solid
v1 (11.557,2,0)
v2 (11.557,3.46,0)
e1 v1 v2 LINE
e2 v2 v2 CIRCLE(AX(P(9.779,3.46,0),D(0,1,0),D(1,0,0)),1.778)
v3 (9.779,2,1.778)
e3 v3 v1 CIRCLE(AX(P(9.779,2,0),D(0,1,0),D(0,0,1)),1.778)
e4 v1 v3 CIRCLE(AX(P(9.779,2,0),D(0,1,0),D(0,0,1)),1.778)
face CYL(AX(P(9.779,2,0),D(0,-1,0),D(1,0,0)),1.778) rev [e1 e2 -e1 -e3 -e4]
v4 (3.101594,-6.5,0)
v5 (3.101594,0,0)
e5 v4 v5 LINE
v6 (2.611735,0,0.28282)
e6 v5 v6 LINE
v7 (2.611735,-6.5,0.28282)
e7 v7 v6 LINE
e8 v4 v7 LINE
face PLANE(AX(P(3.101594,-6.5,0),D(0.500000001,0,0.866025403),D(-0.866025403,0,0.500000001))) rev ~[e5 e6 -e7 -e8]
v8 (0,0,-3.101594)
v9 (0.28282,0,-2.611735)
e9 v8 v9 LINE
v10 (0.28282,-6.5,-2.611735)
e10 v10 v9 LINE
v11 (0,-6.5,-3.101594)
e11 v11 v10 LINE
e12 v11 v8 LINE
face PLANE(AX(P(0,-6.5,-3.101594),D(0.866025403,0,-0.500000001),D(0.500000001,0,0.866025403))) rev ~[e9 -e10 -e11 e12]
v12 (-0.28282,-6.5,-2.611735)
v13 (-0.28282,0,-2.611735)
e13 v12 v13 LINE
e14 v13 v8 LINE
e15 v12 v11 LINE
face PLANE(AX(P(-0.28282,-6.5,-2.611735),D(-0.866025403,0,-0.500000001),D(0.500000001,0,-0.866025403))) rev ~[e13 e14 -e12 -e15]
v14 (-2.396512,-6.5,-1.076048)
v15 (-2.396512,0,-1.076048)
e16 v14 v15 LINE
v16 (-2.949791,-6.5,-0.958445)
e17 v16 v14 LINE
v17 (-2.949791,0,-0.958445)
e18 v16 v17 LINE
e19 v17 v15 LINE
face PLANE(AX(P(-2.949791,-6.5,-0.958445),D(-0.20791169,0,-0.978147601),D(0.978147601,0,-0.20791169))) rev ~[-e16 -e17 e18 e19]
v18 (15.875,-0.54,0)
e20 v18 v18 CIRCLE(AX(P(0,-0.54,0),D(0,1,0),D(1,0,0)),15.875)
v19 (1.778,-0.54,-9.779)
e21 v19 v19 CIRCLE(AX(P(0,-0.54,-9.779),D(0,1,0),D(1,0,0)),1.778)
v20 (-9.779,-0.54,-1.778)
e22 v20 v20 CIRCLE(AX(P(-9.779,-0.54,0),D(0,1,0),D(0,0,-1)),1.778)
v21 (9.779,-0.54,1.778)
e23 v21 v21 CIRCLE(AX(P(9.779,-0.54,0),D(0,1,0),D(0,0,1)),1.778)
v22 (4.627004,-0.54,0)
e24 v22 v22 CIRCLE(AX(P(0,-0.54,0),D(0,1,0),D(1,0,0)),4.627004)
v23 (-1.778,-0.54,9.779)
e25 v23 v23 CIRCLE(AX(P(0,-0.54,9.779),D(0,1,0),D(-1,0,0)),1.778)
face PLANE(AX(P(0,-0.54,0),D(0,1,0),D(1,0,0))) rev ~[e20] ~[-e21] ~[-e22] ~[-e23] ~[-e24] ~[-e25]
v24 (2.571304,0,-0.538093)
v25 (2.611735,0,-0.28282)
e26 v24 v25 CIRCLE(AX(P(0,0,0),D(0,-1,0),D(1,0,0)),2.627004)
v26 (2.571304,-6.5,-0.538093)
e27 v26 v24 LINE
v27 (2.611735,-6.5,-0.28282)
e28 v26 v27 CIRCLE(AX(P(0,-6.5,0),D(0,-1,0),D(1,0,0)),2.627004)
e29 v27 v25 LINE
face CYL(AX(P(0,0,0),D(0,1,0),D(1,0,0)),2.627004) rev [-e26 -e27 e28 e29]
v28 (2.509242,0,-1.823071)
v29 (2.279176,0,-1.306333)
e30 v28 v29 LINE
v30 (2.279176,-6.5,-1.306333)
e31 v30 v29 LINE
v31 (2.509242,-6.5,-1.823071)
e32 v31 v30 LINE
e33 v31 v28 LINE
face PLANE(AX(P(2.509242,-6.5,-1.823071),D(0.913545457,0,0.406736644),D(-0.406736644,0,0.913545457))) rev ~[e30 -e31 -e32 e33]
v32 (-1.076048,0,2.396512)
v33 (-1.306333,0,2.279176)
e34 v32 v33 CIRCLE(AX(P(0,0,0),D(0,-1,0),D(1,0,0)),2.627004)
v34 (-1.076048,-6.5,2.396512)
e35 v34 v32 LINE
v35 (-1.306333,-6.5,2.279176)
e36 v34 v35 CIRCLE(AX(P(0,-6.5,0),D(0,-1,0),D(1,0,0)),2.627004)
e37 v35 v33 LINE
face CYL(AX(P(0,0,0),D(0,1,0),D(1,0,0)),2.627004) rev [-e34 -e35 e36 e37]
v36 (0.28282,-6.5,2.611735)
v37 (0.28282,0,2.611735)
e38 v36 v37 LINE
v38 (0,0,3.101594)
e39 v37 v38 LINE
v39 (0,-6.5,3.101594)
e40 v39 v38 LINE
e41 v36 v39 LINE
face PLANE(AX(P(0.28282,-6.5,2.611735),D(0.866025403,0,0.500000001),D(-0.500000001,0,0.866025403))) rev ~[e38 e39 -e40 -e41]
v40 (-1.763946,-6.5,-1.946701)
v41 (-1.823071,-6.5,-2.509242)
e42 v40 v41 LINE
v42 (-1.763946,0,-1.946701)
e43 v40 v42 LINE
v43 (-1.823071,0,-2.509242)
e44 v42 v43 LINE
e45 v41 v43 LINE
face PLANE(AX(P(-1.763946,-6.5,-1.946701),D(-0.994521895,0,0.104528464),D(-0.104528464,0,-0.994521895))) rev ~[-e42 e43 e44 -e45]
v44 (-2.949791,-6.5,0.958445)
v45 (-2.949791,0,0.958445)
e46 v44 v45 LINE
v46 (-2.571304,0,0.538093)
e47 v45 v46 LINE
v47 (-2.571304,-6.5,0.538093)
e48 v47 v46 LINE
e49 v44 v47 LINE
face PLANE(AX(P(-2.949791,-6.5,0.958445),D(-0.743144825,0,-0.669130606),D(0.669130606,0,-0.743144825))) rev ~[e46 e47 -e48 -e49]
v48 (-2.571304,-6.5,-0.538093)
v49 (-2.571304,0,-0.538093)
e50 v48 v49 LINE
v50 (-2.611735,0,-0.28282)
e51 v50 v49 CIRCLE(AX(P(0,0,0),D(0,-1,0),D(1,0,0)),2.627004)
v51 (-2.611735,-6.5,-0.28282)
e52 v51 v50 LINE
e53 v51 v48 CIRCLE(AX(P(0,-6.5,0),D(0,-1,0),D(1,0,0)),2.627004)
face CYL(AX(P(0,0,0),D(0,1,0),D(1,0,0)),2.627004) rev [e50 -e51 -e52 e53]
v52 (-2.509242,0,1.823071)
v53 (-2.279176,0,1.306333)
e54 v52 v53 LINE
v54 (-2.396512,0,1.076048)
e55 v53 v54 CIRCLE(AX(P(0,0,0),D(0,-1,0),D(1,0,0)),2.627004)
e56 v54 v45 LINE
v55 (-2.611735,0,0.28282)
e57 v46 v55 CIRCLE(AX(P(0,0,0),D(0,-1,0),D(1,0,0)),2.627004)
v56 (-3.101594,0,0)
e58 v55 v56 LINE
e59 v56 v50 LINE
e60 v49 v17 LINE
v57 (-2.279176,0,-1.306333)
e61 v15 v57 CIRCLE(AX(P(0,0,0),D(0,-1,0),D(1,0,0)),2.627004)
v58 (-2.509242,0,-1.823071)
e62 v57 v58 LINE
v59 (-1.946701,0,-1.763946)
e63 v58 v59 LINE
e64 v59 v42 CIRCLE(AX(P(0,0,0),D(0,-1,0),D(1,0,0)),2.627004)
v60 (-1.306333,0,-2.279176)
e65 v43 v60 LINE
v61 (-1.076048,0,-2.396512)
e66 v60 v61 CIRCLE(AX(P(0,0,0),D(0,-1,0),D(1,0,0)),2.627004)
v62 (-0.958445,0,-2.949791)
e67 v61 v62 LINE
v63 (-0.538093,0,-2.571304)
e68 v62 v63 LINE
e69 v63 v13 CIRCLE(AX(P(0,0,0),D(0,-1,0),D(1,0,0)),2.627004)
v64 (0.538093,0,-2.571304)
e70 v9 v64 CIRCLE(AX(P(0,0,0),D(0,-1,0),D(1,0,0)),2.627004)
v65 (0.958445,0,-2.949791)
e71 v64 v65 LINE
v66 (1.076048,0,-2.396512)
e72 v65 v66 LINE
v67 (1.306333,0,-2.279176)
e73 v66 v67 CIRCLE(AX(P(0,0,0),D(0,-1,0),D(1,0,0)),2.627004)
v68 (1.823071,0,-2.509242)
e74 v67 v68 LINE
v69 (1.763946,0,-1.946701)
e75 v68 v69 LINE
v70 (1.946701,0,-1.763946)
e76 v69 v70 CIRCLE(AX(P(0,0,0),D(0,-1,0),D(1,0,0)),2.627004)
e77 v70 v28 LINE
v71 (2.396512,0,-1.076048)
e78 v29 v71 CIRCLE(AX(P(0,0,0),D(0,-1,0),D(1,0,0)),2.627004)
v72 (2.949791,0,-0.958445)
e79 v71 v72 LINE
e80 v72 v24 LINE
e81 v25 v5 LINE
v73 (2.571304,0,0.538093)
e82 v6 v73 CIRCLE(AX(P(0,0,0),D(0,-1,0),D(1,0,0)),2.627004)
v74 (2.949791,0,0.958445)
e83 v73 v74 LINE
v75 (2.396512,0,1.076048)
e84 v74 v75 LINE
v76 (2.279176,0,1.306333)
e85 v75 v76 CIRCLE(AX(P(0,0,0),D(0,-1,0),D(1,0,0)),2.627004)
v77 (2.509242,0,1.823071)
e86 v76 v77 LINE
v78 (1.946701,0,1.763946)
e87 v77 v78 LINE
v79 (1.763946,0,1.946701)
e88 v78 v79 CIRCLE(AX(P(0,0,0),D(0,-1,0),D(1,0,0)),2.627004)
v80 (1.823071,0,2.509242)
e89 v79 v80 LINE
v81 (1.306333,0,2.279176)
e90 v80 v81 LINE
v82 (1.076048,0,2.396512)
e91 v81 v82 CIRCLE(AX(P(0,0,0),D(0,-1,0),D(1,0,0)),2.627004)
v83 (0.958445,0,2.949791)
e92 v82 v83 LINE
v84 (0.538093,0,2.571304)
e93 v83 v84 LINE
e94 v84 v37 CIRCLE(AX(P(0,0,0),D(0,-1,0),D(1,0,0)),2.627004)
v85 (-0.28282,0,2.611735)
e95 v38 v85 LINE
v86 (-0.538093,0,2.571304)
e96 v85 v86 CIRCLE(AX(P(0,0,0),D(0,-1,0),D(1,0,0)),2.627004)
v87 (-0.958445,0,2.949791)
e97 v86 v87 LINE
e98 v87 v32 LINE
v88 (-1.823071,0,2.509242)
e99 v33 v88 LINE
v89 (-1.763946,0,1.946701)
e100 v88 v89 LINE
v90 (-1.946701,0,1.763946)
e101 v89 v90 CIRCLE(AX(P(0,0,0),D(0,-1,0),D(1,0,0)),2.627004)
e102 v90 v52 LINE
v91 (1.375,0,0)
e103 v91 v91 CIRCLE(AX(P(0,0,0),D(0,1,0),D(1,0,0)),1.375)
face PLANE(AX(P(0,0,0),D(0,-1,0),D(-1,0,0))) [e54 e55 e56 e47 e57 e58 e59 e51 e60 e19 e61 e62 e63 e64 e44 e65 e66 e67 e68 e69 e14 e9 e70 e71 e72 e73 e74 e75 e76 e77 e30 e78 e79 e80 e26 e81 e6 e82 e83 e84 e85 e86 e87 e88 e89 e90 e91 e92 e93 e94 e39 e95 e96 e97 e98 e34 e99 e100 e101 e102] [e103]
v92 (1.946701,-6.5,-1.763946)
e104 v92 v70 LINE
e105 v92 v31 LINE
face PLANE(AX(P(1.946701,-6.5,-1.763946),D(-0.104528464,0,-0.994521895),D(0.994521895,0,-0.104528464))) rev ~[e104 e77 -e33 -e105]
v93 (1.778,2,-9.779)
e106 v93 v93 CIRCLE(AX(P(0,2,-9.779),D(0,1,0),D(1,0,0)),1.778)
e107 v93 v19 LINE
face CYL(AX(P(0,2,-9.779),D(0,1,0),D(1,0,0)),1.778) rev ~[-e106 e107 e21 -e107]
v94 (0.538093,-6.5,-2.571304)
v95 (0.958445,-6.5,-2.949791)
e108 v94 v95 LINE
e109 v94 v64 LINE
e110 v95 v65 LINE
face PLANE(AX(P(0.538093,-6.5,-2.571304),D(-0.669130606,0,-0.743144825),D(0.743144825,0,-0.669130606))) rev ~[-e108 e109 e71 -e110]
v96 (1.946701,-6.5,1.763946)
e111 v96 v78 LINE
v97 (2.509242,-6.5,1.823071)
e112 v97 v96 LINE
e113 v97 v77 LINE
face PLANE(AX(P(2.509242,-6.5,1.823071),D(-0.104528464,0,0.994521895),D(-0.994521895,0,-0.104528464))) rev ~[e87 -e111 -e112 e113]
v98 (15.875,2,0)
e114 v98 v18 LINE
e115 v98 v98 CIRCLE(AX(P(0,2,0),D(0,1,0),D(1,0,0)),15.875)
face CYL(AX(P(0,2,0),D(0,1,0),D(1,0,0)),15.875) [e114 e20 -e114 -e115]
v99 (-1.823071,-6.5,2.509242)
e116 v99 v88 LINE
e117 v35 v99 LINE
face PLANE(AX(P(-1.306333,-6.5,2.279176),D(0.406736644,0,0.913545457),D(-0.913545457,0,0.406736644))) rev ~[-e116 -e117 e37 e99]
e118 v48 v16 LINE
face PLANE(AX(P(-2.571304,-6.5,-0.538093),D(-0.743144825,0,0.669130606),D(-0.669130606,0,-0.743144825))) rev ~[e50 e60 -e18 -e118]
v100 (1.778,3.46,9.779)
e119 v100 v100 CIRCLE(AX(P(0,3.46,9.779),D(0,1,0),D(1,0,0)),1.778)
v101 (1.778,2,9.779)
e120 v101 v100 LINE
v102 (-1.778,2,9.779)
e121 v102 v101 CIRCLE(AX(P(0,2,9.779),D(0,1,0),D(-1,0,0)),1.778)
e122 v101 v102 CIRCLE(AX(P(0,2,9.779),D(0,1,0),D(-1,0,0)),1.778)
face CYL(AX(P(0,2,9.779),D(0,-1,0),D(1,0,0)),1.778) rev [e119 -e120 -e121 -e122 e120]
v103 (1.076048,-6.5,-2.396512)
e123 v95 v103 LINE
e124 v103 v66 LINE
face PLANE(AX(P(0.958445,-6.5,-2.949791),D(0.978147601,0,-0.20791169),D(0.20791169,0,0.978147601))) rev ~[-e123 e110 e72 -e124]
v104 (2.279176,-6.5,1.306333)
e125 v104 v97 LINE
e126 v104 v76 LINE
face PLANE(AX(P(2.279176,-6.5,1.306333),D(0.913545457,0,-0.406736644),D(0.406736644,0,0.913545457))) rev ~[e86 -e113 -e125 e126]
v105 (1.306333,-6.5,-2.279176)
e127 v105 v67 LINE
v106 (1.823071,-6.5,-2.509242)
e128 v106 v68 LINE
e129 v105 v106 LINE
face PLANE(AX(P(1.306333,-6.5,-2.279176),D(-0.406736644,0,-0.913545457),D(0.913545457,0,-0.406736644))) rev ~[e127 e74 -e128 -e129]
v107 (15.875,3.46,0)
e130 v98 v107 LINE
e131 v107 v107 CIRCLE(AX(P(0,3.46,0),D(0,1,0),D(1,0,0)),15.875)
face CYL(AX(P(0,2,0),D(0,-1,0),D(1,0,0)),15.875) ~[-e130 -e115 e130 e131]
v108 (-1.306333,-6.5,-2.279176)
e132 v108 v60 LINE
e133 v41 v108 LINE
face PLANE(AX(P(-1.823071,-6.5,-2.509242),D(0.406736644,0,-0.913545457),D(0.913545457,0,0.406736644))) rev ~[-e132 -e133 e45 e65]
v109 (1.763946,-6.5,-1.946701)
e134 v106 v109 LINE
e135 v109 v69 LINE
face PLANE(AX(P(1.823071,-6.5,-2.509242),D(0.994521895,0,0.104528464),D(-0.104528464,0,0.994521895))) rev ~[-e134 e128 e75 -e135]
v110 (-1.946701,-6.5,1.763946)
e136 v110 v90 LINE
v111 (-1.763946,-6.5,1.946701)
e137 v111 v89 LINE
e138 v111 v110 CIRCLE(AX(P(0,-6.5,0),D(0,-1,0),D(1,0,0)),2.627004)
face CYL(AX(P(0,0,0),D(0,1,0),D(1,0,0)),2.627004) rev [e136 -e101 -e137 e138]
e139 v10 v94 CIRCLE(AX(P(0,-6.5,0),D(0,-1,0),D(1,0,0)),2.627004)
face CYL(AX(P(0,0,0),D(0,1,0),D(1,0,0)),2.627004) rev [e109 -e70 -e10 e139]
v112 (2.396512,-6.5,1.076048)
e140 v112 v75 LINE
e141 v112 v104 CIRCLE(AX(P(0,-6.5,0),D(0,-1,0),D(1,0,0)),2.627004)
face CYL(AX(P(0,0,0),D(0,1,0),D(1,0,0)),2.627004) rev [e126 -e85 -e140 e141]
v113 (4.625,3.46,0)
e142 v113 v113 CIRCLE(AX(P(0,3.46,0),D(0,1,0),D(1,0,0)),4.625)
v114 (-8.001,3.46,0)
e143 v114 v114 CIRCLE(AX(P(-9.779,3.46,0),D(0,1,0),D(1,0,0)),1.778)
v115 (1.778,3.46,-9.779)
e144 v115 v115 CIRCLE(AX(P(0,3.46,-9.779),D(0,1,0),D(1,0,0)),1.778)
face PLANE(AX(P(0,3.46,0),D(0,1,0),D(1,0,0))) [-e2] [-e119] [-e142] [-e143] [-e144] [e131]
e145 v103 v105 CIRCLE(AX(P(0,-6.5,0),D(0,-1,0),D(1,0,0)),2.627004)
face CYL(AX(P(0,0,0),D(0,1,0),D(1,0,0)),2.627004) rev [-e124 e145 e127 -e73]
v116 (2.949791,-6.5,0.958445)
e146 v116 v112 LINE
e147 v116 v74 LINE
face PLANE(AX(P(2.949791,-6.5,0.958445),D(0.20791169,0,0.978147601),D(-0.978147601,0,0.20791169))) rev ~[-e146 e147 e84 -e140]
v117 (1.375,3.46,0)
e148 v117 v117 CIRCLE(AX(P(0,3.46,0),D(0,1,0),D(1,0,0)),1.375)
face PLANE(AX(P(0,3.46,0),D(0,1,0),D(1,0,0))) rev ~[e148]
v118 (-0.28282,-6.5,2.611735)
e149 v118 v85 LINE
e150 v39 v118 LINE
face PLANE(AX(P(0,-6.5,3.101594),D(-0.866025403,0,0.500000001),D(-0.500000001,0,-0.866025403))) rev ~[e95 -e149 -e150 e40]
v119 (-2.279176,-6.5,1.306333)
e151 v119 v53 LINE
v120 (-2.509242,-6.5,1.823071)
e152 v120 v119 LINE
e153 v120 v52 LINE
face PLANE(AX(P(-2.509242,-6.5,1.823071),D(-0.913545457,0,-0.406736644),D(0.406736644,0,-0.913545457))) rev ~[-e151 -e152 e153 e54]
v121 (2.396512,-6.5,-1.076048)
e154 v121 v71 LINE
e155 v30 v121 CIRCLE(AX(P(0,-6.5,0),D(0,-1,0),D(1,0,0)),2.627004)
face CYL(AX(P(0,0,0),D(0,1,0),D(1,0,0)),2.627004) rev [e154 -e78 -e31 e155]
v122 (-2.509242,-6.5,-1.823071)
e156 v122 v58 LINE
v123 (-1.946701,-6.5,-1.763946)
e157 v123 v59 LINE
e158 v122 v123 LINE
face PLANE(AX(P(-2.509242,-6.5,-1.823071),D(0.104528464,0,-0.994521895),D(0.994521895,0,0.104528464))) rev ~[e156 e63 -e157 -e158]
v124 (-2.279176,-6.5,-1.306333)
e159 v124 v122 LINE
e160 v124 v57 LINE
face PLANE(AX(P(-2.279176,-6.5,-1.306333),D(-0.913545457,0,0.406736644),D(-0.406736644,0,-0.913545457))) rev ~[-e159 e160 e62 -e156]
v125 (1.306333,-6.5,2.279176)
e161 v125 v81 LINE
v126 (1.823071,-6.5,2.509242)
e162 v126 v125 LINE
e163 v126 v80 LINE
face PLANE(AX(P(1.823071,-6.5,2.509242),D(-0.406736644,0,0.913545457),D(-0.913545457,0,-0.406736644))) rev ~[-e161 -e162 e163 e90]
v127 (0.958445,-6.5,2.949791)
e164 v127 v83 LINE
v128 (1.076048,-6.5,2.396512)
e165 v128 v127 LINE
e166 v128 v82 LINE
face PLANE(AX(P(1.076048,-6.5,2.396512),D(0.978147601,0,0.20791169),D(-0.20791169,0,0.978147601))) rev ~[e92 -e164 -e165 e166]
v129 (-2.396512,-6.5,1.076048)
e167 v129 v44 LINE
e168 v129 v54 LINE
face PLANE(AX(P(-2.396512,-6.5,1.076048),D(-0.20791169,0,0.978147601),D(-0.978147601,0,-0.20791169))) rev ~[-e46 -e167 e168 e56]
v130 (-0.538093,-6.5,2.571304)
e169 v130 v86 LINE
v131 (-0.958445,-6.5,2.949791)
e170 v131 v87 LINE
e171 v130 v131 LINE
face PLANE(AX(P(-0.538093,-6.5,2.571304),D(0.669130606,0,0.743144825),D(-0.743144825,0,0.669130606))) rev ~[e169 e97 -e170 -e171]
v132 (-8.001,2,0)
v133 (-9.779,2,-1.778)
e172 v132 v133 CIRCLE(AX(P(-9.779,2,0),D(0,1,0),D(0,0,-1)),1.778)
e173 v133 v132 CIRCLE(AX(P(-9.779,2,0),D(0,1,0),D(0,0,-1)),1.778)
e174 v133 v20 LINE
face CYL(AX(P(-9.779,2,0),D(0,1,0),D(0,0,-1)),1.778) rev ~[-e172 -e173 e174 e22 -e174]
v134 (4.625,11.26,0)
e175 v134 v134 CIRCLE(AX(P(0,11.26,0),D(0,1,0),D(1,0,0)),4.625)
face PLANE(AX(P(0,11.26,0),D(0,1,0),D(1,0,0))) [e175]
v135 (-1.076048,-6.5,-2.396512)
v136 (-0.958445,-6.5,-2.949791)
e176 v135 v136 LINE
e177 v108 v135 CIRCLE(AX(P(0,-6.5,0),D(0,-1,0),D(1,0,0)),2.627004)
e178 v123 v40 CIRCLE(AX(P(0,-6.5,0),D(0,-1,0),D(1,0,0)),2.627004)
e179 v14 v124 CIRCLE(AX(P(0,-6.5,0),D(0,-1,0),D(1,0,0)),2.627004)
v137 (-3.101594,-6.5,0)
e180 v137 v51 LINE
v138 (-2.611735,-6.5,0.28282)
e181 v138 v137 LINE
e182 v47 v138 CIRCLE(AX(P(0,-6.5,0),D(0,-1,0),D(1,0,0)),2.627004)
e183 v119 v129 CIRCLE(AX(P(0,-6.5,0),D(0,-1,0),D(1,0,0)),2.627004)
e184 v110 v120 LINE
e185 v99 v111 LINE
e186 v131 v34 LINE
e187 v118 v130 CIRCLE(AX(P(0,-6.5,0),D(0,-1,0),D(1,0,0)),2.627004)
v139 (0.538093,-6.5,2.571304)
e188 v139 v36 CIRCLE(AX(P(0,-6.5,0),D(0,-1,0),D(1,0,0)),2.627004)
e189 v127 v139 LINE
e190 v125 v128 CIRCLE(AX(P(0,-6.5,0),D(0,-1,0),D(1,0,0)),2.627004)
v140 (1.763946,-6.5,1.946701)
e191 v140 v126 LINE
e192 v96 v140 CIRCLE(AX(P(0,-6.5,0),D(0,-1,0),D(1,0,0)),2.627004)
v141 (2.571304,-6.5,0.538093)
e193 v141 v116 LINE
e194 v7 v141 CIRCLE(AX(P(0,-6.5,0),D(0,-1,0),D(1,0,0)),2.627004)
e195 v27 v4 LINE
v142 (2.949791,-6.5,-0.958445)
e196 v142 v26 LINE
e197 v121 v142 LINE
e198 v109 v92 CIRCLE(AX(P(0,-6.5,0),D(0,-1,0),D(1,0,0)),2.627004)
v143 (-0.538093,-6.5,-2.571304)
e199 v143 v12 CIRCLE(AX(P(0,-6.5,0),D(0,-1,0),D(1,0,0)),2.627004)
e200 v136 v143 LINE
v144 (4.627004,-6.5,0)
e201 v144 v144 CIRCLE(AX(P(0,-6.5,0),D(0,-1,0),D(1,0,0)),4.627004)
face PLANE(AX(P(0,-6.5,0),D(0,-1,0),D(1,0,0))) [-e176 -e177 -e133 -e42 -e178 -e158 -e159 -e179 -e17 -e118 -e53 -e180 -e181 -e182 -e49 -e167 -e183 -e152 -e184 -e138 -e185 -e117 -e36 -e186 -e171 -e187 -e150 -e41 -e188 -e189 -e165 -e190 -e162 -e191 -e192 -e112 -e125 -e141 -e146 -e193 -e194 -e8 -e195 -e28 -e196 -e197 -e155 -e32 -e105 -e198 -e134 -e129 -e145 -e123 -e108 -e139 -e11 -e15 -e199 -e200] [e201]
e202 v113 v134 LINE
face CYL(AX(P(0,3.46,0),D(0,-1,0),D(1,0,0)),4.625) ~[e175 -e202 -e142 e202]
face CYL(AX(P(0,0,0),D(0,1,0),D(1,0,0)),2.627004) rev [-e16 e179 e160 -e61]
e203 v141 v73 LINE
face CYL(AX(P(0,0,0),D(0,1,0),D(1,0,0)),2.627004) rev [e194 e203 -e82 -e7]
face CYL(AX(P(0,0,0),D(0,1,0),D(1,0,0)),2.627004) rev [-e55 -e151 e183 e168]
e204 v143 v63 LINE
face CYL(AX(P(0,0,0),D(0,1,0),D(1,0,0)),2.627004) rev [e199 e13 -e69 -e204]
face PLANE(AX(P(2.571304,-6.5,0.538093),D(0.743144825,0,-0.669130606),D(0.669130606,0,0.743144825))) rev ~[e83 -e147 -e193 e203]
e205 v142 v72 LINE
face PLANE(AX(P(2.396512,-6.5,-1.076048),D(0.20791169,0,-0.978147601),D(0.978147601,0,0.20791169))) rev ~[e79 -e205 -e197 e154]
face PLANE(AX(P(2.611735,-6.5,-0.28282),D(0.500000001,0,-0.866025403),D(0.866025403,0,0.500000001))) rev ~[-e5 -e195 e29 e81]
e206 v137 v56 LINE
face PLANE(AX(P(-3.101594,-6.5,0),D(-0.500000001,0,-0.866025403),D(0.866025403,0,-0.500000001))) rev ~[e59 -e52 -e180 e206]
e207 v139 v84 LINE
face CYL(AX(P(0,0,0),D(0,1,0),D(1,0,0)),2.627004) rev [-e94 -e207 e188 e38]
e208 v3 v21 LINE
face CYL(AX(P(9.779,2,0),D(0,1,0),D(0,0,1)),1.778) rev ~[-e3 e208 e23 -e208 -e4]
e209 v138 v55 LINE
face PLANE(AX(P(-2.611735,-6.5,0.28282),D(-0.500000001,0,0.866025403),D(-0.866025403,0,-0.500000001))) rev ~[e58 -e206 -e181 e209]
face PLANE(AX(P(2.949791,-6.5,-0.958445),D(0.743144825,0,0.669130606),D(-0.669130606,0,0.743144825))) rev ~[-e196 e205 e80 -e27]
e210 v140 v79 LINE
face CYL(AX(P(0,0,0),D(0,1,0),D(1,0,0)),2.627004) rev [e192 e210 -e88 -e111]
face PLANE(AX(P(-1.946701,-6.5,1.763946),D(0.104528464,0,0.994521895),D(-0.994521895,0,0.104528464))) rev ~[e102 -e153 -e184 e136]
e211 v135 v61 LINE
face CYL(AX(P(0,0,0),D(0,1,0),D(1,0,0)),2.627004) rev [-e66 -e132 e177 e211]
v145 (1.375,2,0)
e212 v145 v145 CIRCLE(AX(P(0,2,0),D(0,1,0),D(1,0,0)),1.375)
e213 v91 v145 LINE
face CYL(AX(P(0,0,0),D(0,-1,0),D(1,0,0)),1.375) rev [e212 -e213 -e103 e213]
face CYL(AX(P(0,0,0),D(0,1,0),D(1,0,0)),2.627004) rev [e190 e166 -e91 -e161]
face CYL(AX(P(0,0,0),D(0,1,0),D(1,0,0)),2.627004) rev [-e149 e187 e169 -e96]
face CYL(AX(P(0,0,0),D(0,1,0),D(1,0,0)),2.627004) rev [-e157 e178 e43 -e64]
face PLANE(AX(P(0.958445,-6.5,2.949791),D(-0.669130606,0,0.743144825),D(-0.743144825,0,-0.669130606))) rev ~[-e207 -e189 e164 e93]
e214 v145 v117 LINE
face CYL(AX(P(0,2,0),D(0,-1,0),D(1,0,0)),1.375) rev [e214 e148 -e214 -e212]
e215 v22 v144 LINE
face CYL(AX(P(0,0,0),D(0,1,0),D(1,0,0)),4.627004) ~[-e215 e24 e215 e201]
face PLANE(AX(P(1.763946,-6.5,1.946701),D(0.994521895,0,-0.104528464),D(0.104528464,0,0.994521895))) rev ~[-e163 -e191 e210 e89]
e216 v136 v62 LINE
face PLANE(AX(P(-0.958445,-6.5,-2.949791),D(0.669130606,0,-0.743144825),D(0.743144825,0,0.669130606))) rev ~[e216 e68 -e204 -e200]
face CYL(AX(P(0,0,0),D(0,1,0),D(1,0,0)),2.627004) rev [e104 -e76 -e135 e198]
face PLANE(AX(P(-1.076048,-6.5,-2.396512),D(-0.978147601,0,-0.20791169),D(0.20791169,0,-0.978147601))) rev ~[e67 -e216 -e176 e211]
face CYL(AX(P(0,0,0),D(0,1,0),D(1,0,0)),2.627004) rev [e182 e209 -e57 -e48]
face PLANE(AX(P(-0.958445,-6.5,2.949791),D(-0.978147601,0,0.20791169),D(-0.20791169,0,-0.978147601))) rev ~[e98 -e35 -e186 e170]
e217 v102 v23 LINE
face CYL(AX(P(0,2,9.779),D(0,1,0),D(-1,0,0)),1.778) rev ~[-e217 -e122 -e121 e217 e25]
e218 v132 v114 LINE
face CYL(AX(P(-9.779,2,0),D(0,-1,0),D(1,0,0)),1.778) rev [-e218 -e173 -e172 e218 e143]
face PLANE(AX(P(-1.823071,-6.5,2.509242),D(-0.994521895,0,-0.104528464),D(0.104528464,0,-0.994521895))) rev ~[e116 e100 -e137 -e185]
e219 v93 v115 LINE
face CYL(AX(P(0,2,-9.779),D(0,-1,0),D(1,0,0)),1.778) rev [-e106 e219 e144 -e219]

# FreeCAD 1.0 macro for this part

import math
import FreeCAD as App
import Part
import Sketcher
from FreeCAD import Vector
Q = App.Units.Quantity

doc = App.newDocument("Part")
body = doc.addObject("PartDesign::Body", "Body")

sketch1 = doc.addObject("Sketcher::SketchObject", "Sketch")
body.addObject(sketch1)
sketch1.AttachmentSupport = (doc.XZ_Plane, [""])
sketch1.MapMode = "FlatFace"
sketch1.addGeometry([
    Part.LineSegment(Vector(-2.467436, -13.402194, 0), Vector(-4, -4, 0)),
    Part.LineSegment(Vector(-4, -4, 0), Vector(-12.448473, -2.459446, 0)),
    Part.ArcOfCircle(Part.Circle(Vector(-12, 0, 0), Vector(0, 0, 1), 2.5), math.radians(100.334179), math.radians(259.665821)),
    Part.LineSegment(Vector(-12.448473, 2.459446, 0), Vector(-4, 4, 0)),
    Part.LineSegment(Vector(-4, 4, 0), Vector(-2.467436, 13.402194, 0)),
    Part.ArcOfCircle(Part.Circle(Vector(0, 13, 0), Vector(0, 0, 1), 2.5), math.radians(9.257833), math.radians(170.742167)),
    Part.LineSegment(Vector(2.467436, 13.402194, 0), Vector(4, 4, 0)),
    Part.LineSegment(Vector(4, 4, 0), Vector(12.448473, 2.459446, 0)),
    Part.ArcOfCircle(Part.Circle(Vector(12, 0, 0), Vector(0, 0, 1), 2.5), math.radians(-79.665821), math.radians(79.665821)),
    Part.LineSegment(Vector(12.448473, -2.459446, 0), Vector(4, -4, 0)),
    Part.LineSegment(Vector(4, -4, 0), Vector(2.467436, -13.402194, 0)),
    Part.ArcOfCircle(Part.Circle(Vector(0, -13, 0), Vector(0, 0, 1), 2.5), math.radians(-170.742167), math.radians(-9.257833)),
    Part.Circle(Vector(0, 12, 0), Vector(0, 0, 1), 0.5),
    Part.Circle(Vector(0, 9.5, 0), Vector(0, 0, 1), 0.5),
    Part.Circle(Vector(0, 7.5, 0), Vector(0, 0, 1), 0.5),
    Part.Circle(Vector(12, 0, 0), Vector(0, 0, 1), 0.5),
    Part.Circle(Vector(9.5, 0, 0), Vector(0, 0, 1), 0.5),
    Part.Circle(Vector(7.5, 0, 0), Vector(0, 0, 1), 0.5),
    Part.Circle(Vector(0, 0, 0), Vector(0, 0, 1), 1.375),
    Part.Circle(Vector(-7.5, 0, 0), Vector(0, 0, 1), 0.5),
    Part.Circle(Vector(-9.5, 0, 0), Vector(0, 0, 1), 0.5),
    Part.Circle(Vector(-12, 0, 0), Vector(0, 0, 1), 0.5),
    Part.Circle(Vector(0, -7.5, 0), Vector(0, 0, 1), 0.5),
    Part.Circle(Vector(0, -9.5, 0), Vector(0, 0, 1), 0.5),
    Part.Circle(Vector(0, -12, 0), Vector(0, 0, 1), 0.5),
], False)
sketch1.addConstraint([
    Sketcher.Constraint("Coincident", 0, 2, 1, 1),
    Sketcher.Constraint("Tangent", 1, 2, 2, 2),
    Sketcher.Constraint("Tangent", 2, 1, 3, 1),
    Sketcher.Constraint("Coincident", 3, 2, 4, 1),
    Sketcher.Constraint("Tangent", 4, 2, 5, 2),
    Sketcher.Constraint("Tangent", 5, 1, 6, 1),
    Sketcher.Constraint("Coincident", 6, 2, 7, 1),
    Sketcher.Constraint("Tangent", 7, 2, 8, 2),
    Sketcher.Constraint("Tangent", 8, 1, 9, 1),
    Sketcher.Constraint("Coincident", 9, 2, 10, 1),
    Sketcher.Constraint("Tangent", 10, 2, 11, 2),
    Sketcher.Constraint("Tangent", 11, 1, 0, 1),
    Sketcher.Constraint("Coincident", 18, 3, -1, 1),
    Sketcher.Constraint("Coincident", 15, 3, 8, 3),
    Sketcher.Constraint("Coincident", 21, 3, 2, 3),
    Sketcher.Constraint("Equal", 2, 5),
    Sketcher.Constraint("Equal", 5, 8),
    Sketcher.Constraint("Equal", 8, 11),
    Sketcher.Constraint("Equal", 12, 13),
    Sketcher.Constraint("Equal", 13, 14),
    Sketcher.Constraint("Equal", 14, 15),
    Sketcher.Constraint("Equal", 15, 16),
    Sketcher.Constraint("Equal", 16, 17),
    Sketcher.Constraint("Equal", 17, 19),
    Sketcher.Constraint("Equal", 19, 20),
    Sketcher.Constraint("Equal", 20, 21),
    Sketcher.Constraint("Equal", 21, 22),
    Sketcher.Constraint("Equal", 22, 23),
    Sketcher.Constraint("Equal", 23, 24),
    Sketcher.Constraint("Symmetric", 2, 3, 8, 3, -1, 1),
    Sketcher.Constraint("Symmetric", 5, 3, 11, 3, -1, 1),
    Sketcher.Constraint("Symmetric", 17, 3, 19, 3, -1, 1),
    Sketcher.Constraint("Symmetric", 16, 3, 20, 3, -1, 1),
    Sketcher.Constraint("Symmetric", 14, 3, 22, 3, -1, 1),
    Sketcher.Constraint("Symmetric", 13, 3, 23, 3, -1, 1),
    Sketcher.Constraint("Symmetric", 12, 3, 24, 3, -1, 1),
    Sketcher.Constraint("Symmetric", 0, 2, 6, 2, -1, 1),
    Sketcher.Constraint("Symmetric", 3, 2, 9, 2, -1, 1),
    Sketcher.Constraint("Symmetric", 4, 2, 5, 1, -2),
    Sketcher.Constraint("Symmetric", 2, 1, 7, 2, -2),
    Sketcher.Constraint("PointOnObject", 12, 3, -2),
    Sketcher.Constraint("PointOnObject", 13, 3, -2),
    Sketcher.Constraint("PointOnObject", 14, 3, -2),
    Sketcher.Constraint("PointOnObject", 16, 3, -1),
    Sketcher.Constraint("PointOnObject", 17, 3, -1),
    Sketcher.Constraint("Diameter", 12, Q("1 mm")),
    Sketcher.Constraint("Radius", 2, Q("2.5 mm")),
    Sketcher.Constraint("Diameter", 18, Q("2.75 mm")),
    Sketcher.Constraint("DistanceX", 2, 3, -1, 1, Q("12 mm")),
    Sketcher.Constraint("DistanceY", -1, 1, 5, 3, Q("13 mm")),
    Sketcher.Constraint("DistanceY", -1, 1, 12, 3, Q("12 mm")),
    Sketcher.Constraint("DistanceX", 0, 2, -1, 1, Q("4 mm")),
    Sketcher.Constraint("DistanceY", 0, 2, -1, 1, Q("4 mm")),
    Sketcher.Constraint("DistanceY", 14, 3, 13, 3, Q("2 mm")),
    Sketcher.Constraint("DistanceX", 17, 3, 16, 3, Q("2 mm")),
    Sketcher.Constraint("DistanceY", -1, 1, 13, 3, Q("9.5 mm")),
    Sketcher.Constraint("DistanceX", -1, 1, 16, 3, Q("9.5 mm")),
])
pad1 = doc.addObject("PartDesign::Pad", "Pad")
body.addObject(pad1)
pad1.Profile = sketch1
pad1.Length = 2
pad1.Reversed = True

sketch2 = doc.addObject("Sketcher::SketchObject", "Sketch001")
body.addObject(sketch2)
sketch2.AttachmentSupport = (doc.XZ_Plane, [""])
sketch2.MapMode = "FlatFace"
sketch2.addGeometry([
    Part.Circle(Vector(0, 0, 0), Vector(0, 0, 1), 4.627004),
    Part.Circle(Vector(0, 0, 0), Vector(0, 0, 1), 2.627004),
], False)
sketch2.addConstraint([
    Sketcher.Constraint("Coincident", 0, 3, -1, 1),
    Sketcher.Constraint("Coincident", 1, 3, -1, 1),
    Sketcher.Constraint("Diameter", 0, Q("9.254007 mm")),
    Sketcher.Constraint("Diameter", 1, Q("5.254007 mm")),
])
pad2 = doc.addObject("PartDesign::Pad", "Pad001")
body.addObject(pad2)
pad2.Profile = sketch2
pad2.Length = 6.5

sketch3 = doc.addObject("Sketcher::SketchObject", "Sketch002")
body.addObject(sketch3)
sketch3.AttachmentSupport = (doc.XZ_Plane, [""])
sketch3.MapMode = "FlatFace"
sketch3.AttachmentOffset = App.Placement(Vector(0, 0, 6.5), App.Rotation())
sketch3.addGeometry([
    Part.LineSegment(Vector(0.28282, 2.611735, 0), Vector(0, 3.101594, 0)),
    Part.LineSegment(Vector(0, 3.101594, 0), Vector(-0.28282, 2.611735, 0)),
    Part.ArcOfCircle(Part.Circle(Vector(0, 0, 0), Vector(0, 0, 1), 2.627004), math.radians(83.819627), math.radians(96.180373)),
    Part.ArcOfCircle(Part.Circle(Vector(0, 0, 0), Vector(0, 0, 1), 2.627004), math.radians(101.819627), math.radians(114.180373)),
    Part.LineSegment(Vector(-0.538093, 2.571304, 0), Vector(-0.958445, 2.949791, 0)),
    Part.LineSegment(Vector(-0.958445, 2.949791, 0), Vector(-1.076048, 2.396512, 0)),
    Part.LineSegment(Vector(0.958445, 2.949791, 0), Vector(0.538093, 2.571304, 0)),
    Part.ArcOfCircle(Part.Circle(Vector(0, 0, 0), Vector(0, 0, 1), 2.627004), math.radians(65.819627), math.radians(78.180373)),
    Part.LineSegment(Vector(1.076048, 2.396512, 0), Vector(0.958445, 2.949791, 0)),
    Part.ArcOfCircle(Part.Circle(Vector(0, 0, 0), Vector(0, 0, 1), 2.627004), math.radians(119.819627), math.radians(132.180373)),
    Part.LineSegment(Vector(-1.306333, 2.279176, 0), Vector(-1.823071, 2.509242, 0)),
    Part.LineSegment(Vector(-1.823071, 2.509242, 0), Vector(-1.763946, 1.946701, 0)),
    Part.LineSegment(Vector(1.823071, 2.509242, 0), Vector(1.306333, 2.279176, 0)),
    Part.ArcOfCircle(Part.Circle(Vector(0, 0, 0), Vector(0, 0, 1), 2.627004), math.radians(47.819627), math.radians(60.180373)),
    Part.LineSegment(Vector(1.763946, 1.946701, 0), Vector(1.823071, 2.509242, 0)),
    Part.ArcOfCircle(Part.Circle(Vector(0, 0, 0), Vector(0, 0, 1), 2.627004), math.radians(137.819627), math.radians(150.180373)),
    Part.LineSegment(Vector(-1.946701, 1.763946, 0), Vector(-2.509242, 1.823071, 0)),
    Part.LineSegment(Vector(-2.509242, 1.823071, 0), Vector(-2.279176, 1.306333, 0)),
    Part.LineSegment(Vector(2.509242, 1.823071, 0), Vector(1.946701, 1.763946, 0)),
    Part.ArcOfCircle(Part.Circle(Vector(0, 0, 0), Vector(0, 0, 1), 2.627004), math.radians(29.819627), math.radians(42.180373)),
    Part.LineSegment(Vector(2.279176, 1.306333, 0), Vector(2.509242, 1.823071, 0)),
    Part.ArcOfCircle(Part.Circle(Vector(0, 0, 0), Vector(0, 0, 1), 2.627004), math.radians(155.819627), math.radians(168.180373)),
    Part.LineSegment(Vector(-2.396512, 1.076048, 0), Vector(-2.949791, 0.958445, 0)),
    Part.LineSegment(Vector(-2.949791, 0.958445, 0), Vector(-2.571304, 0.538093, 0)),
    Part.LineSegment(Vector(2.949791, 0.958445, 0), Vector(2.396512, 1.076048, 0)),
    Part.ArcOfCircle(Part.Circle(Vector(0, 0, 0), Vector(0, 0, 1), 2.627004), math.radians(11.819627), math.radians(24.180373)),
    Part.LineSegment(Vector(2.571304, 0.538093, 0), Vector(2.949791, 0.958445, 0)),
    Part.ArcOfCircle(Part.Circle(Vector(0, 0, 0), Vector(0, 0, 1), 2.627004), math.radians(173.819627), math.radians(186.180373)),
    Part.LineSegment(Vector(-2.611735, 0.28282, 0), Vector(-3.101594, 0, 0)),
    Part.LineSegment(Vector(-3.101594, 0, 0), Vector(-2.611735, -0.28282, 0)),
    Part.LineSegment(Vector(3.101594, 0, 0), Vector(2.611735, 0.28282, 0)),
    Part.ArcOfCircle(Part.Circle(Vector(0, 0, 0), Vector(0, 0, 1), 2.627004), math.radians(-6.180373), math.radians(6.180373)),
    Part.LineSegment(Vector(2.611735, -0.28282, 0), Vector(3.101594, 0, 0)),
    Part.ArcOfCircle(Part.Circle(Vector(0, 0, 0), Vector(0, 0, 1), 2.627004), math.radians(-168.180373), math.radians(-155.819627)),
    Part.LineSegment(Vector(-2.571304, -0.538093, 0), Vector(-2.949791, -0.958445, 0)),
    Part.LineSegment(Vector(-2.949791, -0.958445, 0), Vector(-2.396512, -1.076048, 0)),
    Part.LineSegment(Vector(2.949791, -0.958445, 0), Vector(2.571304, -0.538093, 0)),
    Part.ArcOfCircle(Part.Circle(Vector(0, 0, 0), Vector(0, 0, 1), 2.627004), math.radians(-24.180373), math.radians(-11.819627)),
    Part.LineSegment(Vector(2.396512, -1.076048, 0), Vector(2.949791, -0.958445, 0)),
    Part.ArcOfCircle(Part.Circle(Vector(0, 0, 0), Vector(0, 0, 1), 2.627004), math.radians(-150.180373), math.radians(-137.819627)),
    Part.LineSegment(Vector(-2.279176, -1.306333, 0), Vector(-2.509242, -1.823071, 0)),
    Part.LineSegment(Vector(-2.509242, -1.823071, 0), Vector(-1.946701, -1.763946, 0)),
    Part.LineSegment(Vector(2.509242, -1.823071, 0), Vector(2.279176, -1.306333, 0)),
    Part.ArcOfCircle(Part.Circle(Vector(0, 0, 0), Vector(0, 0, 1), 2.627004), math.radians(-42.180373), math.radians(-29.819627)),
    Part.LineSegment(Vector(1.946701, -1.763946, 0), Vector(2.509242, -1.823071, 0)),
    Part.ArcOfCircle(Part.Circle(Vector(0, 0, 0), Vector(0, 0, 1), 2.627004), math.radians(-132.180373), math.radians(-119.819627)),
    Part.LineSegment(Vector(-1.763946, -1.946701, 0), Vector(-1.823071, -2.509242, 0)),
    Part.LineSegment(Vector(-1.823071, -2.509242, 0), Vector(-1.306333, -2.279176, 0)),
    Part.LineSegment(Vector(1.823071, -2.509242, 0), Vector(1.763946, -1.946701, 0)),
    Part.ArcOfCircle(Part.Circle(Vector(0, 0, 0), Vector(0, 0, 1), 2.627004), math.radians(-60.180373), math.radians(-47.819627)),
    Part.LineSegment(Vector(1.306333, -2.279176, 0), Vector(1.823071, -2.509242, 0)),
    Part.ArcOfCircle(Part.Circle(Vector(0, 0, 0), Vector(0, 0, 1), 2.627004), math.radians(-114.180373), math.radians(-101.819627)),
    Part.LineSegment(Vector(-1.076048, -2.396512, 0), Vector(-0.958445, -2.949791, 0)),
    Part.LineSegment(Vector(-0.958445, -2.949791, 0), Vector(-0.538093, -2.571304, 0)),
    Part.LineSegment(Vector(0.958445, -2.949791, 0), Vector(1.076048, -2.396512, 0)),
    Part.ArcOfCircle(Part.Circle(Vector(0, 0, 0), Vector(0, 0, 1), 2.627004), math.radians(-78.180373), math.radians(-65.819627)),
    Part.LineSegment(Vector(0.538093, -2.571304, 0), Vector(0.958445, -2.949791, 0)),
    Part.ArcOfCircle(Part.Circle(Vector(0, 0, 0), Vector(0, 0, 1), 2.627004), math.radians(-96.180373), math.radians(-83.819627)),
    Part.LineSegment(Vector(-0.28282, -2.611735, 0), Vector(0, -3.101594, 0)),
    Part.LineSegment(Vector(0, -3.101594, 0), Vector(0.28282, -2.611735, 0)),
], False)
sketch3.addConstraint([
    Sketcher.Constraint("Coincident", 0, 2, 1, 1),
    Sketcher.Constraint("Coincident", 1, 2, 2, 2),
    Sketcher.Constraint("Coincident", 2, 1, 0, 1),
    Sketcher.Constraint("Coincident", 3, 1, 4, 1),
    Sketcher.Constraint("Coincident", 4, 2, 5, 1),
    Sketcher.Constraint("Coincident", 5, 2, 3, 2),
    Sketcher.Constraint("Coincident", 6, 2, 7, 2),
    Sketcher.Constraint("Coincident", 7, 1, 8, 1),
    Sketcher.Constraint("Coincident", 8, 2, 6, 1),
    Sketcher.Constraint("Coincident", 9, 1, 10, 1),
    Sketcher.Constraint("Coincident", 10, 2, 11, 1),
    Sketcher.Constraint("Coincident", 11, 2, 9, 2),
    Sketcher.Constraint("Coincident", 12, 2, 13, 2),
    Sketcher.Constraint("Coincident", 13, 1, 14, 1),
    Sketcher.Constraint("Coincident", 14, 2, 12, 1),
    Sketcher.Constraint("Coincident", 15, 1, 16, 1),
    Sketcher.Constraint("Coincident", 16, 2, 17, 1),
    Sketcher.Constraint("Coincident", 17, 2, 15, 2),
    Sketcher.Constraint("Coincident", 18, 2, 19, 2),
    Sketcher.Constraint("Coincident", 19, 1, 20, 1),
    Sketcher.Constraint("Coincident", 20, 2, 18, 1),
    Sketcher.Constraint("Coincident", 21, 1, 22, 1),
    Sketcher.Constraint("Coincident", 22, 2, 23, 1),
    Sketcher.Constraint("Coincident", 23, 2, 21, 2),
    Sketcher.Constraint("Coincident", 24, 2, 25, 2),
    Sketcher.Constraint("Coincident", 25, 1, 26, 1),
    Sketcher.Constraint("Coincident", 26, 2, 24, 1),
    Sketcher.Constraint("Coincident", 27, 1, 28, 1),
    Sketcher.Constraint("Coincident", 28, 2, 29, 1),
    Sketcher.Constraint("Coincident", 29, 2, 27, 2),
    Sketcher.Constraint("Coincident", 30, 2, 31, 2),
    Sketcher.Constraint("Coincident", 31, 1, 32, 1),
    Sketcher.Constraint("Coincident", 32, 2, 30, 1),
    Sketcher.Constraint("Coincident", 33, 1, 34, 1),
    Sketcher.Constraint("Coincident", 34, 2, 35, 1),
    Sketcher.Constraint("Coincident", 35, 2, 33, 2),
    Sketcher.Constraint("Coincident", 36, 2, 37, 2),
    Sketcher.Constraint("Coincident", 37, 1, 38, 1),
    Sketcher.Constraint("Coincident", 38, 2, 36, 1),
    Sketcher.Constraint("Coincident", 39, 1, 40, 1),
    Sketcher.Constraint("Coincident", 40, 2, 41, 1),
    Sketcher.Constraint("Coincident", 41, 2, 39, 2),
    Sketcher.Constraint("Coincident", 42, 2, 43, 2),
    Sketcher.Constraint("Coincident", 43, 1, 44, 1),
    Sketcher.Constraint("Coincident", 44, 2, 42, 1),
    Sketcher.Constraint("Coincident", 45, 1, 46, 1),
    Sketcher.Constraint("Coincident", 46, 2, 47, 1),
    Sketcher.Constraint("Coincident", 47, 2, 45, 2),
    Sketcher.Constraint("Coincident", 48, 2, 49, 2),
    Sketcher.Constraint("Coincident", 49, 1, 50, 1),
    Sketcher.Constraint("Coincident", 50, 2, 48, 1),
    Sketcher.Constraint("Coincident", 51, 1, 52, 1),
    Sketcher.Constraint("Coincident", 52, 2, 53, 1),
    Sketcher.Constraint("Coincident", 53, 2, 51, 2),
    Sketcher.Constraint("Coincident", 54, 2, 55, 2),
    Sketcher.Constraint("Coincident", 55, 1, 56, 1),
    Sketcher.Constraint("Coincident", 56, 2, 54, 1),
    Sketcher.Constraint("Coincident", 57, 1, 58, 1),
    Sketcher.Constraint("Coincident", 58, 2, 59, 1),
    Sketcher.Constraint("Coincident", 59, 2, 57, 2),
    Sketcher.Constraint("Coincident", 2, 3, -1, 1),
    Sketcher.Constraint("Coincident", 3, 3, -1, 1),
    Sketcher.Constraint("Coincident", 7, 3, -1, 1),
    Sketcher.Constraint("Coincident", 9, 3, -1, 1),
    Sketcher.Constraint("Coincident", 13, 3, -1, 1),
    Sketcher.Constraint("Coincident", 15, 3, -1, 1),
    Sketcher.Constraint("Coincident", 19, 3, -1, 1),
    Sketcher.Constraint("Coincident", 21, 3, -1, 1),
    Sketcher.Constraint("Coincident", 25, 3, -1, 1),
    Sketcher.Constraint("Coincident", 27, 3, -1, 1),
    Sketcher.Constraint("Coincident", 31, 3, -1, 1),
    Sketcher.Constraint("Coincident", 33, 3, -1, 1),
    Sketcher.Constraint("Coincident", 37, 3, -1, 1),
    Sketcher.Constraint("Coincident", 39, 3, -1, 1),
    Sketcher.Constraint("Coincident", 43, 3, -1, 1),
    Sketcher.Constraint("Coincident", 45, 3, -1, 1),
    Sketcher.Constraint("Coincident", 49, 3, -1, 1),
    Sketcher.Constraint("Coincident", 51, 3, -1, 1),
    Sketcher.Constraint("Coincident", 55, 3, -1, 1),
    Sketcher.Constraint("Coincident", 57, 3, -1, 1),
    Sketcher.Constraint("Equal", 2, 3),
    Sketcher.Constraint("Equal", 3, 7),
    Sketcher.Constraint("Equal", 7, 9),
    Sketcher.Constraint("Equal", 9, 13),
    Sketcher.Constraint("Equal", 13, 15),
    Sketcher.Constraint("Equal", 15, 19),
    Sketcher.Constraint("Equal", 19, 21),
    Sketcher.Constraint("Equal", 21, 25),
    Sketcher.Constraint("Equal", 25, 27),
    Sketcher.Constraint("Equal", 27, 31),
    Sketcher.Constraint("Equal", 31, 33),
    Sketcher.Constraint("Equal", 33, 37),
    Sketcher.Constraint("Equal", 37, 39),
    Sketcher.Constraint("Equal", 39, 43),
    Sketcher.Constraint("Equal", 43, 45),
    Sketcher.Constraint("Equal", 45, 49),
    Sketcher.Constraint("Equal", 49, 51),
    Sketcher.Constraint("Equal", 51, 55),
    Sketcher.Constraint("Equal", 55, 57),
    Sketcher.Constraint("Symmetric", 28, 2, 32, 2, -1, 1),
    Sketcher.Constraint("Symmetric", 26, 2, 34, 2, -1, 1),
    Sketcher.Constraint("Symmetric", 22, 2, 38, 2, -1, 1),
    Sketcher.Constraint("Symmetric", 20, 2, 40, 2, -1, 1),
    Sketcher.Constraint("Symmetric", 16, 2, 44, 2, -1, 1),
    Sketcher.Constraint("Symmetric", 14, 2, 46, 2, -1, 1),
    Sketcher.Constraint("Symmetric", 10, 2, 50, 2, -1, 1),
    Sketcher.Constraint("Symmetric", 8, 2, 52, 2, -1, 1),
    Sketcher.Constraint("Symmetric", 4, 2, 56, 2, -1, 1),
    Sketcher.Constraint("Symmetric", 0, 2, 58, 2, -1, 1),
    Sketcher.Constraint("Symmetric", 4, 2, 8, 2, -2),
    Sketcher.Constraint("Symmetric", 10, 2, 14, 2, -2),
    Sketcher.Constraint("Symmetric", 16, 2, 20, 2, -2),
    Sketcher.Constraint("Symmetric", 22, 2, 26, 2, -2),
    Sketcher.Constraint("PointOnObject", 0, 2, -2),
    Sketcher.Constraint("PointOnObject", 28, 2, -1),
    Sketcher.Constraint("Perpendicular", 14, 16),
    Sketcher.Constraint("Perpendicular", 12, 17),
    Sketcher.Constraint("Perpendicular", 11, 18),
    Sketcher.Constraint("Perpendicular", 10, 20),
    Sketcher.Constraint("Perpendicular", 8, 22),
    Sketcher.Constraint("Perpendicular", 6, 23),
    Sketcher.Constraint("Perpendicular", 5, 24),
    Sketcher.Constraint("Perpendicular", 4, 26),
    Sketcher.Constraint("Perpendicular", 0, 28),
    Sketcher.Constraint("Perpendicular", 1, 29),
    Sketcher.Constraint("Parallel", 29, 30),
    Sketcher.Constraint("Parallel", 28, 32),
    Sketcher.Constraint("Parallel", 26, 34),
    Sketcher.Constraint("Parallel", 24, 35),
    Sketcher.Constraint("Parallel", 23, 36),
    Sketcher.Constraint("Parallel", 22, 38),
    Sketcher.Constraint("Parallel", 20, 40),
    Sketcher.Constraint("Parallel", 18, 41),
    Sketcher.Constraint("Parallel", 17, 42),
    Sketcher.Constraint("Parallel", 16, 44),
    Sketcher.Constraint("Perpendicular", 44, 46),
    Sketcher.Constraint("Perpendicular", 42, 47),
    Sketcher.Constraint("Perpendicular", 41, 48),
    Sketcher.Constraint("Perpendicular", 40, 50),
    Sketcher.Constraint("Perpendicular", 38, 52),
    Sketcher.Constraint("Perpendicular", 36, 53),
    Sketcher.Constraint("Perpendicular", 35, 54),
    Sketcher.Constraint("Perpendicular", 34, 56),
    Sketcher.Constraint("Perpendicular", 32, 58),
    Sketcher.Constraint("Perpendicular", 30, 59),
    Sketcher.Constraint("Horizontal", 1, 2, 2, 1),
    Sketcher.Constraint("Horizontal", 3, 1, 6, 2),
    Sketcher.Constraint("Horizontal", 5, 2, 7, 1),
    Sketcher.Constraint("Horizontal", 9, 1, 12, 2),
    Sketcher.Constraint("Horizontal", 11, 2, 13, 1),
    Sketcher.Constraint("Equal", 1, 4),
    Sketcher.Constraint("Equal", 4, 5),
    Sketcher.Constraint("Equal", 8, 10),
    Sketcher.Constraint("Equal", 10, 11),
    Sketcher.Constraint("Equal", 14, 16),
    Sketcher.Constraint("Equal", 16, 17),
    Sketcher.Constraint("Equal", 20, 22),
    Sketcher.Constraint("Equal", 22, 23),
    Sketcher.Constraint("Equal", 26, 28),
    Sketcher.Constraint("Angle", 0, Q("120 deg")),
    Sketcher.Constraint("Angle", 4, Q("138 deg")),
    Sketcher.Constraint("Angle", 5, Q("-102 deg")),
    Sketcher.Constraint("Angle", 10, Q("156 deg")),
    Sketcher.Constraint("Angle", 11, Q("-84 deg")),
    Sketcher.Constraint("Radius", 2, Q("2.627004 mm")),
    Sketcher.Constraint("DistanceY", -1, 1, 11, 2, Q("1.946701 mm")),
])
pocket1 = doc.addObject("PartDesign::Pocket", "Pocket")
body.addObject(pocket1)
pocket1.Profile = sketch3
pocket1.Length = 6.5

sketch4 = doc.addObject("Sketcher::SketchObject", "Sketch003")
body.addObject(sketch4)
sketch4.AttachmentSupport = (doc.XZ_Plane, [""])
sketch4.MapMode = "FlatFace"
sketch4.AttachmentOffset = App.Placement(Vector(0, 0, -2), App.Rotation())
sketch4.addGeometry([
    Part.Circle(Vector(0, 0, 0), Vector(0, 0, 1), 15.875),
    Part.Circle(Vector(0, 0, 0), Vector(0, 0, 1), 3.75),
], False)
sketch4.addConstraint([
    Sketcher.Constraint("Coincident", 0, 3, -1, 1),
    Sketcher.Constraint("Coincident", 1, 3, -1, 1),
    Sketcher.Constraint("Diameter", 1, Q("7.5 mm")),
    Sketcher.Constraint("Diameter", 0, Q("31.75 mm")),
])
pad3 = doc.addObject("PartDesign::Pad", "Pad002")
body.addObject(pad3)
pad3.Profile = sketch4
pad3.Length = 2.54

sketch5 = doc.addObject("Sketcher::SketchObject", "Sketch004")
body.addObject(sketch5)
sketch5.AttachmentSupport = (doc.XZ_Plane, [""])
sketch5.MapMode = "FlatFace"
sketch5.AttachmentOffset = App.Placement(Vector(0, 0, -2), App.Rotation())
sketch5.addGeometry(Part.Circle(Vector(0, -9.779, 0), Vector(0, 0, 1), 1.778), False)
sketch5.addConstraint([
    Sketcher.Constraint("PointOnObject", 0, 3, -2),
    Sketcher.Constraint("Diameter", 0, Q("3.556 mm")),
    Sketcher.Constraint("DistanceY", 0, 3, -1, 1, Q("9.779 mm")),
])
pocket2 = doc.addObject("PartDesign::Pocket", "Pocket001")
body.addObject(pocket2)
pocket2.Profile = sketch5
pocket2.Length = 2.54
pocket2.Reversed = True
doc.recompute()

polarpattern = doc.addObject("PartDesign::PolarPattern", "PolarPattern")
body.addObject(polarpattern)
polarpattern.Originals = [pocket2]
polarpattern.Axis = (doc.Y_Axis, [""])
polarpattern.Angle = 360
polarpattern.Occurrences = 4
body.Tip = polarpattern

sketch6 = doc.addObject("Sketcher::SketchObject", "Sketch005")
body.addObject(sketch6)
sketch6.AttachmentSupport = (doc.XZ_Plane, [""])
sketch6.MapMode = "FlatFace"
sketch6.AttachmentOffset = App.Placement(Vector(0, 0, -2), App.Rotation())
sketch6.addGeometry([
    Part.Circle(Vector(0, 0, 0), Vector(0, 0, 1), 15.875),
    Part.Circle(Vector(0, 9.779, 0), Vector(0, 0, 1), 1.778),
    Part.Circle(Vector(-9.779, 0, 0), Vector(0, 0, 1), 1.778),
    Part.Circle(Vector(0, 0, 0), Vector(0, 0, 1), 1.375),
    Part.Circle(Vector(9.779, 0, 0), Vector(0, 0, 1), 1.778),
    Part.Circle(Vector(0, -9.779, 0), Vector(0, 0, 1), 1.778),
], False)
sketch6.addConstraint([
    Sketcher.Constraint("Coincident", 0, 3, -1, 1),
    Sketcher.Constraint("Coincident", 3, 3, -1, 1),
    Sketcher.Constraint("Equal", 1, 2),
    Sketcher.Constraint("Equal", 2, 4),
    Sketcher.Constraint("Equal", 4, 5),
    Sketcher.Constraint("Symmetric", 2, 3, 4, 3, -1, 1),
    Sketcher.Constraint("Symmetric", 1, 3, 5, 3, -1, 1),
    Sketcher.Constraint("PointOnObject", 1, 3, -2),
    Sketcher.Constraint("PointOnObject", 2, 3, -1),
    Sketcher.Constraint("Diameter", 0, Q("31.75 mm")),
    Sketcher.Constraint("Diameter", 3, Q("2.75 mm")),
    Sketcher.Constraint("Diameter", 1, Q("3.556 mm")),
    Sketcher.Constraint("DistanceY", -1, 1, 1, 3, Q("9.779 mm")),
    Sketcher.Constraint("DistanceX", 2, 3, -1, 1, Q("9.779 mm")),
])
pad4 = doc.addObject("PartDesign::Pad", "Pad003")
body.addObject(pad4)
pad4.Profile = sketch6
pad4.Length = 1.46
pad4.Reversed = True

sketch7 = doc.addObject("Sketcher::SketchObject", "Sketch006")
body.addObject(sketch7)
sketch7.AttachmentSupport = (doc.XZ_Plane, [""])
sketch7.MapMode = "FlatFace"
sketch7.AttachmentOffset = App.Placement(Vector(0, 0, -3.46), App.Rotation())
sketch7.addGeometry(Part.Circle(Vector(0, 0, 0), Vector(0, 0, 1), 4.625), False)
sketch7.addConstraint([
    Sketcher.Constraint("Coincident", 0, 3, -1, 1),
    Sketcher.Constraint("Diameter", 0, Q("9.25 mm")),
])
pad5 = doc.addObject("PartDesign::Pad", "Pad004")
body.addObject(pad5)
pad5.Profile = sketch7
pad5.Length = 7.8
pad5.Reversed = True

doc.recompute()
